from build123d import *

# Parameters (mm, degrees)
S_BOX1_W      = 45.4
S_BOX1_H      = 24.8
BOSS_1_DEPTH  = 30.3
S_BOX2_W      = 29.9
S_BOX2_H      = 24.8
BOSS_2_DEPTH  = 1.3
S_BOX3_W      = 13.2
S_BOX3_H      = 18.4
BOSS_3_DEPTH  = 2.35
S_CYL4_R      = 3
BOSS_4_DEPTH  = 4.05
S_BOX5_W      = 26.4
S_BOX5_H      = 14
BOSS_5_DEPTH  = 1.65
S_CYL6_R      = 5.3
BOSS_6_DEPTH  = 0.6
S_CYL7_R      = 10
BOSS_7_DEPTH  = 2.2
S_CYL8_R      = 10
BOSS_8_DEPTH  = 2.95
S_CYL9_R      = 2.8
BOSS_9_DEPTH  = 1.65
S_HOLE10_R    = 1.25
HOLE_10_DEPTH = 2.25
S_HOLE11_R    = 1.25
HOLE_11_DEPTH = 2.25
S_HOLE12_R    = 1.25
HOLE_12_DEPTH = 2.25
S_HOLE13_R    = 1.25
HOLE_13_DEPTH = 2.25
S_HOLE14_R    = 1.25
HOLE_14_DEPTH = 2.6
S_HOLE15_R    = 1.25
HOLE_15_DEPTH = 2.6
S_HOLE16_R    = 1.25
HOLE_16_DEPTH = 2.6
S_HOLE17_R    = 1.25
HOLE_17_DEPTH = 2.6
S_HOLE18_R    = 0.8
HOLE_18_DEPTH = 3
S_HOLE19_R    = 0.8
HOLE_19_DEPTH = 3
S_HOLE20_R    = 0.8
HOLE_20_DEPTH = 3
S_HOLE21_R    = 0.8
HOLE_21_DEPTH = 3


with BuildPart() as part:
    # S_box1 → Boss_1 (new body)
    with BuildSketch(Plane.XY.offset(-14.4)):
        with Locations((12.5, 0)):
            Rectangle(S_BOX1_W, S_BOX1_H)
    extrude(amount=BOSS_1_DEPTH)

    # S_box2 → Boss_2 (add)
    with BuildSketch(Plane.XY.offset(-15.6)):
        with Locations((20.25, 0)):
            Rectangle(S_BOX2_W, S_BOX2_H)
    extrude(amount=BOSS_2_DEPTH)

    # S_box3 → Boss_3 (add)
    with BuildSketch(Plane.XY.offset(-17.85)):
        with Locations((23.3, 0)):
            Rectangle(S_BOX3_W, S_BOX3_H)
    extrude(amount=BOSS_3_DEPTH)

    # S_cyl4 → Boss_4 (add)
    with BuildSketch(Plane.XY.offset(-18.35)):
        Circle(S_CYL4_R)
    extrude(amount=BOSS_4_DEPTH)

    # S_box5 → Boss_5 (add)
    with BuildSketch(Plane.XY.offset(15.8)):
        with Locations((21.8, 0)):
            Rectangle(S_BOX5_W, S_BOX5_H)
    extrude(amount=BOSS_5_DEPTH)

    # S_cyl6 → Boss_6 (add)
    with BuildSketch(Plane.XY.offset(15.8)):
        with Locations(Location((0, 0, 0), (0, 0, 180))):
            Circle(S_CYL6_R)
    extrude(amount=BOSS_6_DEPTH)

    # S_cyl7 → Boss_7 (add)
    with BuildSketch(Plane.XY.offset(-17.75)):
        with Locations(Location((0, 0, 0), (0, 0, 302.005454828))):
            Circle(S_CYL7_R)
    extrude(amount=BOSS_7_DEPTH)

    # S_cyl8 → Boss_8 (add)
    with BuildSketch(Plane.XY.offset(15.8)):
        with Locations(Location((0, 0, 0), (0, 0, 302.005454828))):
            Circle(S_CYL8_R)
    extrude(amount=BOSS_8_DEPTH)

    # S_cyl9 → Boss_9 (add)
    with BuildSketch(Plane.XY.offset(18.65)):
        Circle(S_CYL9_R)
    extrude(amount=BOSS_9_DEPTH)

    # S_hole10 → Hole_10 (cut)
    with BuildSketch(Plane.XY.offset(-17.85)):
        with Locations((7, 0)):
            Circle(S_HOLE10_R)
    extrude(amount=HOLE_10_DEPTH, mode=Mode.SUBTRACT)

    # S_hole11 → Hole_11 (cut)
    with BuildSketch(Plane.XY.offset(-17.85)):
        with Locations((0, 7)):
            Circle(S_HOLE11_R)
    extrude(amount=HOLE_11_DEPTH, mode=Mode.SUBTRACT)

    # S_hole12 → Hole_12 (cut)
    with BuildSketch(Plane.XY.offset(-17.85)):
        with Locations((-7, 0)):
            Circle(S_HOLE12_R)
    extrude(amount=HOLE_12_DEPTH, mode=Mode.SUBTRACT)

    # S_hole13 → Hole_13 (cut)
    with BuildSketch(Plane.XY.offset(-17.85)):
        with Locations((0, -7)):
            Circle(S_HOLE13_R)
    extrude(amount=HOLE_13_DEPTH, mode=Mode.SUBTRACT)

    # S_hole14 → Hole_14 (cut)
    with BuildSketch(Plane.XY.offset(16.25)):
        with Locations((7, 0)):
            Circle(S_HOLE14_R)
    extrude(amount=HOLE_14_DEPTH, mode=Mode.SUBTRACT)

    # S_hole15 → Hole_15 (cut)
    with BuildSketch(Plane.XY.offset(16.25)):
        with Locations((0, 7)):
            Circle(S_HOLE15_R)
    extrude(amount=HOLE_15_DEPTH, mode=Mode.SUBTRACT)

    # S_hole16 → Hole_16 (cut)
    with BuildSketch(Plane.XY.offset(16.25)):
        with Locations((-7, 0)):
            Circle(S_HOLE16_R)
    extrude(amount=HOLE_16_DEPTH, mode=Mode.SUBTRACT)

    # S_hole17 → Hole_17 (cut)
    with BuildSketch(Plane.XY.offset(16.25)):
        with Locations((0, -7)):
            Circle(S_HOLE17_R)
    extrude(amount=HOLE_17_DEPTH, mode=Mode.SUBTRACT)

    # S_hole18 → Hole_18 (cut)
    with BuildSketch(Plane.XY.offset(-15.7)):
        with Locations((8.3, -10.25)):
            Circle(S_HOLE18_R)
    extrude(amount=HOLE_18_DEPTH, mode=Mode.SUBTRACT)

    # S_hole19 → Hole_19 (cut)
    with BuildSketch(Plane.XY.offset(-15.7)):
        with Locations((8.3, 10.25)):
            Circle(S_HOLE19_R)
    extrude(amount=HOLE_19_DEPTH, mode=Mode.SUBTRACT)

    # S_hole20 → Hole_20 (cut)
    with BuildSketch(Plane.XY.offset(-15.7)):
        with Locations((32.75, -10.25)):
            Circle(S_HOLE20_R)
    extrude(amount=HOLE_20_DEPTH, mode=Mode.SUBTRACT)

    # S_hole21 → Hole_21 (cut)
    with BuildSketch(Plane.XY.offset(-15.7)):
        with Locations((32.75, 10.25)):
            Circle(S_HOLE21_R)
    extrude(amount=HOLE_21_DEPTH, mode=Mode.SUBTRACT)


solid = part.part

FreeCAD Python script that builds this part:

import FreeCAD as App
import Part
import Sketcher
from FreeCAD import Vector


def add_polygon(sketch, points):
    """Adds a closed chain of lines whose ends are joined by coincident constraints."""
    first, n = sketch.GeometryCount, len(points)
    for a, b in zip(points, points[1:] + points[:1]):
        sketch.addGeometry(Part.LineSegment(App.Vector(*a, 0), App.Vector(*b, 0)), False)
    for i in range(n):
        sketch.addConstraint(Sketcher.Constraint("Coincident", first + i, 2, first + (i + 1) % n, 1))

doc = App.newDocument("Part")
body = doc.addObject("PartDesign::Body", "Body")

sketch1 = body.newObject("Sketcher::SketchObject", "Sketch")
sketch1.AttachmentSupport = (doc.getObject("XY_Plane"), [""])
sketch1.MapMode = "FlatFace"
sketch1.AttachmentOffset = App.Placement(Vector(0, 0, -14.4), App.Rotation())
add_polygon(sketch1, [(-10, 12), (-10, -12), (35, -12), (35, 12)])
sketch1.addConstraint(Sketcher.Constraint("Vertical", 0))
sketch1.addConstraint(Sketcher.Constraint("Horizontal", 1))
sketch1.addConstraint(Sketcher.Constraint("Vertical", 2))
sketch1.addConstraint(Sketcher.Constraint("Horizontal", 3))
sketch1.addConstraint(Sketcher.Constraint("DistanceX", 1, 1, 1, 2, 45.4))
sketch1.addConstraint(Sketcher.Constraint("DistanceY", 0, 2, 0, 1, 24.8))
sketch1.addConstraint(Sketcher.Constraint("DistanceX", 0, 2, -1, 1, 10.2))
sketch1.addConstraint(Sketcher.Constraint("DistanceY", 0, 2, -1, 1, 12.4))
pad1 = body.newObject("PartDesign::Pad", "Pad")
pad1.Profile = sketch1
pad1.Length = 30.3

sketch2 = body.newObject("Sketcher::SketchObject", "Sketch001")
sketch2.AttachmentSupport = (doc.getObject("XY_Plane"), [""])
sketch2.MapMode = "FlatFace"
sketch2.AttachmentOffset = App.Placement(Vector(0, 0, -15.6), App.Rotation())
add_polygon(sketch2, [(5, 12), (5, -12), (35, -12), (35, 12)])
sketch2.addConstraint(Sketcher.Constraint("Vertical", 0))
sketch2.addConstraint(Sketcher.Constraint("Horizontal", 1))
sketch2.addConstraint(Sketcher.Constraint("Vertical", 2))
sketch2.addConstraint(Sketcher.Constraint("Horizontal", 3))
sketch2.addConstraint(Sketcher.Constraint("DistanceX", 1, 1, 1, 2, 29.9))
sketch2.addConstraint(Sketcher.Constraint("DistanceY", 0, 2, 0, 1, 24.8))
sketch2.addConstraint(Sketcher.Constraint("DistanceX", -1, 1, 0, 2, 5.3))
sketch2.addConstraint(Sketcher.Constraint("DistanceY", 0, 2, -1, 1, 12.4))
pad2 = body.newObject("PartDesign::Pad", "Pad001")
pad2.Profile = sketch2
pad2.Length = 1.3

sketch3 = body.newObject("Sketcher::SketchObject", "Sketch002")
sketch3.AttachmentSupport = (doc.getObject("XY_Plane"), [""])
sketch3.MapMode = "FlatFace"
sketch3.AttachmentOffset = App.Placement(Vector(0, 0, -17.85), App.Rotation())
add_polygon(sketch3, [(17, 9), (17, -9), (30, -9), (30, 9)])
sketch3.addConstraint(Sketcher.Constraint("Vertical", 0))
sketch3.addConstraint(Sketcher.Constraint("Horizontal", 1))
sketch3.addConstraint(Sketcher.Constraint("Vertical", 2))
sketch3.addConstraint(Sketcher.Constraint("Horizontal", 3))
sketch3.addConstraint(Sketcher.Constraint("DistanceX", 1, 1, 1, 2, 13.2))
sketch3.addConstraint(Sketcher.Constraint("DistanceY", 0, 2, 0, 1, 18.4))
sketch3.addConstraint(Sketcher.Constraint("DistanceX", -1, 1, 0, 2, 16.7))
sketch3.addConstraint(Sketcher.Constraint("DistanceY", 0, 2, -1, 1, 9.2))
pad3 = body.newObject("PartDesign::Pad", "Pad002")
pad3.Profile = sketch3
pad3.Length = 2.35

sketch4 = body.newObject("Sketcher::SketchObject", "Sketch003")
sketch4.AttachmentSupport = (doc.getObject("XY_Plane"), [""])
sketch4.MapMode = "FlatFace"
sketch4.AttachmentOffset = App.Placement(Vector(0, 0, -18.35), App.Rotation())
sketch4.addGeometry(Part.Circle(Vector(0, 0, 0), Vector(0, 0, 1), 3), False)
sketch4.addConstraint(Sketcher.Constraint("Coincident", 0, 3, -1, 1))
sketch4.addConstraint(Sketcher.Constraint("Diameter", 0, 6.0))
pad4 = body.newObject("PartDesign::Pad", "Pad003")
pad4.Profile = sketch4
pad4.Length = 4.05

sketch5 = body.newObject("Sketcher::SketchObject", "Sketch004")
sketch5.AttachmentSupport = (doc.getObject("XY_Plane"), [""])
sketch5.MapMode = "FlatFace"
sketch5.AttachmentOffset = App.Placement(Vector(0, 0, 15.8), App.Rotation())
add_polygon(sketch5, [(9, 7), (9, -7), (35, -7), (35, 7)])
sketch5.addConstraint(Sketcher.Constraint("Vertical", 0))
sketch5.addConstraint(Sketcher.Constraint("Horizontal", 1))
sketch5.addConstraint(Sketcher.Constraint("Vertical", 2))
sketch5.addConstraint(Sketcher.Constraint("Horizontal", 3))
sketch5.addConstraint(Sketcher.Constraint("DistanceY", 0, 2, 0, 1, 14.0))
sketch5.addConstraint(Sketcher.Constraint("DistanceX", 1, 1, 1, 2, 26.4))
sketch5.addConstraint(Sketcher.Constraint("DistanceY", 0, 2, -1, 1, 7.0))
sketch5.addConstraint(Sketcher.Constraint("DistanceX", -1, 1, 1, 2, 35.0))
pad5 = body.newObject("PartDesign::Pad", "Pad004")
pad5.Profile = sketch5
pad5.Length = 1.65

sketch6 = body.newObject("Sketcher::SketchObject", "Sketch005")
sketch6.AttachmentSupport = (doc.getObject("XY_Plane"), [""])
sketch6.MapMode = "FlatFace"
sketch6.AttachmentOffset = App.Placement(Vector(0, 0, 15.8), App.Rotation())
sketch6.addGeometry(Part.Circle(Vector(0, 0, 0), Vector(0, 0, 1), 5), False)
sketch6.addConstraint(Sketcher.Constraint("Coincident", 0, 3, -1, 1))
sketch6.addConstraint(Sketcher.Constraint("Diameter", 0, 10.6))
pad6 = body.newObject("PartDesign::Pad", "Pad005")
pad6.Profile = sketch6
pad6.Length = 0.6

sketch7 = body.newObject("Sketcher::SketchObject", "Sketch006")
sketch7.AttachmentSupport = (doc.getObject("XY_Plane"), [""])
sketch7.MapMode = "FlatFace"
sketch7.AttachmentOffset = App.Placement(Vector(0, 0, -17.75), App.Rotation())
sketch7.addGeometry(Part.Circle(Vector(0, 0, 0), Vector(0, 0, 1), 10), False)
sketch7.addConstraint(Sketcher.Constraint("Coincident", 0, 3, -1, 1))
sketch7.addConstraint(Sketcher.Constraint("Diameter", 0, 20.0))
pad7 = body.newObject("PartDesign::Pad", "Pad006")
pad7.Profile = sketch7
pad7.Length = 2.2

sketch8 = body.newObject("Sketcher::SketchObject", "Sketch007")
sketch8.AttachmentSupport = (doc.getObject("XY_Plane"), [""])
sketch8.MapMode = "FlatFace"
sketch8.AttachmentOffset = App.Placement(Vector(0, 0, 15.8), App.Rotation())
sketch8.addGeometry(Part.Circle(Vector(0, 0, 0), Vector(0, 0, 1), 10), False)
sketch8.addConstraint(Sketcher.Constraint("Coincident", 0, 3, -1, 1))
sketch8.addConstraint(Sketcher.Constraint("Diameter", 0, 20.0))
pad8 = body.newObject("PartDesign::Pad", "Pad007")
pad8.Profile = sketch8
pad8.Length = 2.95

sketch9 = body.newObject("Sketcher::SketchObject", "Sketch008")
sketch9.AttachmentSupport = (doc.getObject("XY_Plane"), [""])
sketch9.MapMode = "FlatFace"
sketch9.AttachmentOffset = App.Placement(Vector(0, 0, 18.65), App.Rotation())
sketch9.addGeometry(Part.Circle(Vector(0, 0, 0), Vector(0, 0, 1), 2.8), False)
sketch9.addConstraint(Sketcher.Constraint("Coincident", 0, 3, -1, 1))
sketch9.addConstraint(Sketcher.Constraint("Diameter", 0, 5.6))
pad9 = body.newObject("PartDesign::Pad", "Pad008")
pad9.Profile = sketch9
pad9.Length = 1.65

sketch10 = body.newObject("Sketcher::SketchObject", "Sketch009")
sketch10.AttachmentSupport = (doc.getObject("XY_Plane"), [""])
sketch10.MapMode = "FlatFace"
sketch10.AttachmentOffset = App.Placement(Vector(0, 0, -17.85), App.Rotation())
sketch10.addGeometry(Part.Circle(Vector(7, 0, 0), Vector(0, 0, 1), 1.2), False)
sketch10.addConstraint(Sketcher.Constraint("PointOnObject", 0, 3, -1))
sketch10.addConstraint(Sketcher.Constraint("Diameter", 0, 2.5))
sketch10.addConstraint(Sketcher.Constraint("DistanceX", -1, 1, 0, 3, 7.0))
pocket1 = body.newObject("PartDesign::Pocket", "Pocket")
pocket1.Profile = sketch10
pocket1.Length = 2.25
pocket1.Reversed = True

sketch11 = body.newObject("Sketcher::SketchObject", "Sketch010")
sketch11.AttachmentSupport = (doc.getObject("XY_Plane"), [""])
sketch11.MapMode = "FlatFace"
sketch11.AttachmentOffset = App.Placement(Vector(0, 0, -17.85), App.Rotation())
sketch11.addGeometry(Part.Circle(Vector(0, 7, 0), Vector(0, 0, 1), 1.2), False)
sketch11.addConstraint(Sketcher.Constraint("PointOnObject", 0, 3, -2))
sketch11.addConstraint(Sketcher.Constraint("Diameter", 0, 2.5))
sketch11.addConstraint(Sketcher.Constraint("DistanceY", -1, 1, 0, 3, 7.0))
pocket2 = body.newObject("PartDesign::Pocket", "Pocket001")
pocket2.Profile = sketch11
pocket2.Length = 2.25
pocket2.Reversed = True

sketch12 = body.newObject("Sketcher::SketchObject", "Sketch011")
sketch12.AttachmentSupport = (doc.getObject("XY_Plane"), [""])
sketch12.MapMode = "FlatFace"
sketch12.AttachmentOffset = App.Placement(Vector(0, 0, -17.85), App.Rotation())
sketch12.addGeometry(Part.Circle(Vector(-7, 0, 0), Vector(0, 0, 1), 1.2), False)
sketch12.addConstraint(Sketcher.Constraint("PointOnObject", 0, 3, -1))
sketch12.addConstraint(Sketcher.Constraint("Diameter", 0, 2.5))
sketch12.addConstraint(Sketcher.Constraint("DistanceX", 0, 3, -1, 1, 7.0))
pocket3 = body.newObject("PartDesign::Pocket", "Pocket002")
pocket3.Profile = sketch12
pocket3.Length = 2.25
pocket3.Reversed = True

sketch13 = body.newObject("Sketcher::SketchObject", "Sketch012")
sketch13.AttachmentSupport = (doc.getObject("XY_Plane"), [""])
sketch13.MapMode = "FlatFace"
sketch13.AttachmentOffset = App.Placement(Vector(0, 0, -17.85), App.Rotation())
sketch13.addGeometry(Part.Circle(Vector(0, -7, 0), Vector(0, 0, 1), 1.2), False)
sketch13.addConstraint(Sketcher.Constraint("PointOnObject", 0, 3, -2))
sketch13.addConstraint(Sketcher.Constraint("Diameter", 0, 2.5))
sketch13.addConstraint(Sketcher.Constraint("DistanceY", 0, 3, -1, 1, 7.0))
pocket4 = body.newObject("PartDesign::Pocket", "Pocket003")
pocket4.Profile = sketch13
pocket4.Length = 2.25
pocket4.Reversed = True

sketch14 = body.newObject("Sketcher::SketchObject", "Sketch013")
sketch14.AttachmentSupport = (doc.getObject("XY_Plane"), [""])
sketch14.MapMode = "FlatFace"
sketch14.AttachmentOffset = App.Placement(Vector(0, 0, 16.25), App.Rotation())
sketch14.addGeometry(Part.Circle(Vector(7, 0, 0), Vector(0, 0, 1), 1.2), False)
sketch14.addConstraint(Sketcher.Constraint("PointOnObject", 0, 3, -1))
sketch14.addConstraint(Sketcher.Constraint("Diameter", 0, 2.5))
sketch14.addConstraint(Sketcher.Constraint("DistanceX", -1, 1, 0, 3, 7.0))
pocket5 = body.newObject("PartDesign::Pocket", "Pocket004")
pocket5.Profile = sketch14
pocket5.Length = 2.6
pocket5.Reversed = True

sketch15 = body.newObject("Sketcher::SketchObject", "Sketch014")
sketch15.AttachmentSupport = (doc.getObject("XY_Plane"), [""])
sketch15.MapMode = "FlatFace"
sketch15.AttachmentOffset = App.Placement(Vector(0, 0, 16.25), App.Rotation())
sketch15.addGeometry(Part.Circle(Vector(0, 7, 0), Vector(0, 0, 1), 1.2), False)
sketch15.addConstraint(Sketcher.Constraint("PointOnObject", 0, 3, -2))
sketch15.addConstraint(Sketcher.Constraint("Diameter", 0, 2.5))
sketch15.addConstraint(Sketcher.Constraint("DistanceY", -1, 1, 0, 3, 7.0))
pocket6 = body.newObject("PartDesign::Pocket", "Pocket005")
pocket6.Profile = sketch15
pocket6.Length = 2.6
pocket6.Reversed = True

sketch16 = body.newObject("Sketcher::SketchObject", "Sketch015")
sketch16.AttachmentSupport = (doc.getObject("XY_Plane"), [""])
sketch16.MapMode = "FlatFace"
sketch16.AttachmentOffset = App.Placement(Vector(0, 0, 16.25), App.Rotation())
sketch16.addGeometry(Part.Circle(Vector(-7, 0, 0), Vector(0, 0, 1), 1.2), False)
sketch16.addConstraint(Sketcher.Constraint("PointOnObject", 0, 3, -1))
sketch16.addConstraint(Sketcher.Constraint("Diameter", 0, 2.5))
sketch16.addConstraint(Sketcher.Constraint("DistanceX", 0, 3, -1, 1, 7.0))
pocket7 = body.newObject("PartDesign::Pocket", "Pocket006")
pocket7.Profile = sketch16
pocket7.Length = 2.6
pocket7.Reversed = True

sketch17 = body.newObject("Sketcher::SketchObject", "Sketch016")
sketch17.AttachmentSupport = (doc.getObject("XY_Plane"), [""])
sketch17.MapMode = "FlatFace"
sketch17.AttachmentOffset = App.Placement(Vector(0, 0, 16.25), App.Rotation())
sketch17.addGeometry(Part.Circle(Vector(0, -7, 0), Vector(0, 0, 1), 1.2), False)
sketch17.addConstraint(Sketcher.Constraint("PointOnObject", 0, 3, -2))
sketch17.addConstraint(Sketcher.Constraint("Diameter", 0, 2.5))
sketch17.addConstraint(Sketcher.Constraint("DistanceY", 0, 3, -1, 1, 7.0))
pocket8 = body.newObject("PartDesign::Pocket", "Pocket007")
pocket8.Profile = sketch17
pocket8.Length = 2.6
pocket8.Reversed = True

sketch18 = body.newObject("Sketcher::SketchObject", "Sketch017")
sketch18.AttachmentSupport = (doc.getObject("XY_Plane"), [""])
sketch18.MapMode = "FlatFace"
sketch18.AttachmentOffset = App.Placement(Vector(0, 0, -15.7), App.Rotation())
sketch18.addGeometry(Part.Circle(Vector(8.3, -10.2, 0), Vector(0, 0, 1), 0.8), False)
sketch18.addConstraint(Sketcher.Constraint("Diameter", 0, 1.6))
sketch18.addConstraint(Sketcher.Constraint("DistanceX", -1, 1, 0, 3, 8.3))
sketch18.addConstraint(Sketcher.Constraint("DistanceY", 0, 3, -1, 1, 10.25))
pocket9 = body.newObject("PartDesign::Pocket", "Pocket008")
pocket9.Profile = sketch18
pocket9.Length = 3
pocket9.Reversed = True

sketch19 = body.newObject("Sketcher::SketchObject", "Sketch018")
sketch19.AttachmentSupport = (doc.getObject("XY_Plane"), [""])
sketch19.MapMode = "FlatFace"
sketch19.AttachmentOffset = App.Placement(Vector(0, 0, -15.7), App.Rotation())
sketch19.addGeometry(Part.Circle(Vector(8.3, 10.2, 0), Vector(0, 0, 1), 0.8), False)
sketch19.addConstraint(Sketcher.Constraint("Diameter", 0, 1.6))
sketch19.addConstraint(Sketcher.Constraint("DistanceX", -1, 1, 0, 3, 8.3))
sketch19.addConstraint(Sketcher.Constraint("DistanceY", -1, 1, 0, 3, 10.25))
pocket10 = body.newObject("PartDesign::Pocket", "Pocket009")
pocket10.Profile = sketch19
pocket10.Length = 3
pocket10.Reversed = True

sketch20 = body.newObject("Sketcher::SketchObject", "Sketch019")
sketch20.AttachmentSupport = (doc.getObject("XY_Plane"), [""])
sketch20.MapMode = "FlatFace"
sketch20.AttachmentOffset = App.Placement(Vector(0, 0, -15.7), App.Rotation())
sketch20.addGeometry(Part.Circle(Vector(32.8, -10.2, 0), Vector(0, 0, 1), 0.8), False)
sketch20.addConstraint(Sketcher.Constraint("Diameter", 0, 1.6))
sketch20.addConstraint(Sketcher.Constraint("DistanceX", -1, 1, 0, 3, 32.75))
sketch20.addConstraint(Sketcher.Constraint("DistanceY", 0, 3, -1, 1, 10.25))
pocket11 = body.newObject("PartDesign::Pocket", "Pocket010")
pocket11.Profile = sketch20
pocket11.Length = 3
pocket11.Reversed = True

sketch21 = body.newObject("Sketcher::SketchObject", "Sketch020")
sketch21.AttachmentSupport = (doc.getObject("XY_Plane"), [""])
sketch21.MapMode = "FlatFace"
sketch21.AttachmentOffset = App.Placement(Vector(0, 0, -15.7), App.Rotation())
sketch21.addGeometry(Part.Circle(Vector(32.8, 10.2, 0), Vector(0, 0, 1), 0.8), False)
sketch21.addConstraint(Sketcher.Constraint("Diameter", 0, 1.6))
sketch21.addConstraint(Sketcher.Constraint("DistanceX", -1, 1, 0, 3, 32.75))
sketch21.addConstraint(Sketcher.Constraint("DistanceY", -1, 1, 0, 3, 10.25))
pocket12 = body.newObject("PartDesign::Pocket", "Pocket011")
pocket12.Profile = sketch21
pocket12.Length = 3
pocket12.Reversed = True

doc.recompute()
